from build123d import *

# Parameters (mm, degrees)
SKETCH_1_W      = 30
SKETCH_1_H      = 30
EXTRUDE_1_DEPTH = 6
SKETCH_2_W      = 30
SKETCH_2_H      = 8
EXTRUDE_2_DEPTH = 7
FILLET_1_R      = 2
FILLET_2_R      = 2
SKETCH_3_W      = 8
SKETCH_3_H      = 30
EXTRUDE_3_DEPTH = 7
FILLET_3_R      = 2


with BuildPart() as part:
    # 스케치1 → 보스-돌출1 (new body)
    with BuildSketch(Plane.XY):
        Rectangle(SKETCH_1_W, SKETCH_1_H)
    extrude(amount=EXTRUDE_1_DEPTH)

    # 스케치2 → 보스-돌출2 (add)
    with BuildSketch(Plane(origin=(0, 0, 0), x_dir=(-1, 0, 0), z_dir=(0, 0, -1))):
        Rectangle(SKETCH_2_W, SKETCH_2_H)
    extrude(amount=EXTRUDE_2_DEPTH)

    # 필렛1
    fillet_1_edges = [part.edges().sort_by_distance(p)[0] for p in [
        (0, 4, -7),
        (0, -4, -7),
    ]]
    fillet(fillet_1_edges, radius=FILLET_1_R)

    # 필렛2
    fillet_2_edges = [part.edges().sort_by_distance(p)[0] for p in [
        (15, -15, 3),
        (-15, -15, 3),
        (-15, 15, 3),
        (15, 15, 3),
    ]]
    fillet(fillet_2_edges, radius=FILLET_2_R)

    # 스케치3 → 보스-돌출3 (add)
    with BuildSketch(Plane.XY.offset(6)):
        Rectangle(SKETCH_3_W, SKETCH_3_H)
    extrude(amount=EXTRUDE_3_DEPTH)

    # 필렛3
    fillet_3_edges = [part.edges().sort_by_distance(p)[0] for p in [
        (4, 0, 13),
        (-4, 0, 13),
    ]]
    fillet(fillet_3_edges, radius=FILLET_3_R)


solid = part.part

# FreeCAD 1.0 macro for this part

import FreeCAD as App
import Part
import Sketcher

V = App.Vector


def edges_at(feature, points):
    """Names of the edges that pass closest to the given points."""
    edges = feature.Shape.Edges
    near = lambda p: min(range(len(edges)), key=lambda i: edges[i].distToShape(Part.Vertex(*p))[0])
    return sorted({f"Edge{near(p) + 1}" for p in points})


def add_polygon(sketch, points):
    """Adds a closed chain of lines whose ends are joined by coincident constraints."""
    first, n = sketch.GeometryCount, len(points)
    for a, b in zip(points, points[1:] + points[:1]):
        sketch.addGeometry(Part.LineSegment(App.Vector(*a, 0), App.Vector(*b, 0)), False)
    for i in range(n):
        sketch.addConstraint(Sketcher.Constraint("Coincident", first + i, 2, first + (i + 1) % n, 1))

doc = App.newDocument("Part")
params = doc.addObject("Spreadsheet::Sheet", "Params")
for row, (alias, value) in enumerate([
    ("sketch1_width", "30 mm"),
    ("pad1_length", "6 mm"),
    ("sketch2_width", "30 mm"),
    ("sketch2_height", "8 mm"),
    ("pad2_length", "7 mm"),
    ("fillet_radius", "2 mm"),
    ("fillet2_radius", "2 mm"),
    ("sketch3_width", "8 mm"),
    ("sketch3_height", "30 mm"),
    ("pad3_length", "7 mm"),
    ("fillet3_radius", "2 mm"),
], start=1):
    params.set(f"A{row}", alias)
    params.set(f"B{row}", "=" + value)
    params.setAlias(f"B{row}", alias)

body = doc.addObject("PartDesign::Body", "Body")

sketch1 = body.newObject("Sketcher::SketchObject", "Sketch")
sketch1.AttachmentSupport = (doc.getObject("XY_Plane"), [""])
sketch1.MapMode = "FlatFace"
add_polygon(sketch1, [(-15, 15), (-15, -15), (15, -15), (15, 15)])
sketch1.addConstraint(Sketcher.Constraint("Vertical", 0))
sketch1.addConstraint(Sketcher.Constraint("Horizontal", 1))
sketch1.addConstraint(Sketcher.Constraint("Vertical", 2))
sketch1.addConstraint(Sketcher.Constraint("Horizontal", 3))
sketch1.addConstraint(Sketcher.Constraint("Symmetric", 0, 2, 2, 2, -1, 1))
sketch1.addConstraint(Sketcher.Constraint("Equal", 3, 0))
sketch1.addConstraint(Sketcher.Constraint("DistanceX", 1, 1, 1, 2, 30.0))
sketch1.setExpression("Constraints[10]", "Params.sketch1_width")
pad1 = body.newObject("PartDesign::Pad", "Pad")
pad1.Profile = sketch1
pad1.setExpression("Length", "Params.pad1_length")

sketch2 = body.newObject("Sketcher::SketchObject", "Sketch001")
sketch2.AttachmentSupport = (doc.getObject("XY_Plane"), [""])
sketch2.MapMode = "FlatFace"
add_polygon(sketch2, [(15, 4), (15, -4), (-15, -4), (-15, 4)])
sketch2.addConstraint(Sketcher.Constraint("Vertical", 0))
sketch2.addConstraint(Sketcher.Constraint("Horizontal", 1))
sketch2.addConstraint(Sketcher.Constraint("Vertical", 2))
sketch2.addConstraint(Sketcher.Constraint("Horizontal", 3))
sketch2.addConstraint(Sketcher.Constraint("Symmetric", 0, 2, 2, 2, -1, 1))
sketch2.addConstraint(Sketcher.Constraint("DistanceX", 1, 2, 1, 1, 30.0))
sketch2.addConstraint(Sketcher.Constraint("DistanceY", 0, 2, 0, 1, 8.0))
sketch2.setExpression("Constraints[9]", "Params.sketch2_width")
sketch2.setExpression("Constraints[10]", "Params.sketch2_height")
pad2 = body.newObject("PartDesign::Pad", "Pad001")
pad2.Profile = sketch2
pad2.setExpression("Length", "Params.pad2_length")
pad2.Reversed = True
doc.recompute()

fillet = body.newObject("PartDesign::Fillet", "Fillet")
fillet.Base = (pad2, edges_at(pad2, [(0, 4, -7), (0, -4, -7)]))
fillet.setExpression("Radius", "Params.fillet_radius")
doc.recompute()

fillet2 = body.newObject("PartDesign::Fillet", "Fillet001")
fillet2.Base = (fillet, edges_at(fillet, [
    (15, -15, 3),
    (-15, -15, 3),
    (-15, 15, 3),
    (15, 15, 3),
]))
fillet2.setExpression("Radius", "Params.fillet2_radius")

sketch3 = body.newObject("Sketcher::SketchObject", "Sketch002")
sketch3.AttachmentSupport = (doc.getObject("XY_Plane"), [""])
sketch3.MapMode = "FlatFace"
sketch3.AttachmentOffset = App.Placement(V(0, 0, 6), App.Rotation())
add_polygon(sketch3, [(-4, 15), (-4, -15), (4, -15), (4, 15)])
sketch3.addConstraint(Sketcher.Constraint("Vertical", 0))
sketch3.addConstraint(Sketcher.Constraint("Horizontal", 1))
sketch3.addConstraint(Sketcher.Constraint("Vertical", 2))
sketch3.addConstraint(Sketcher.Constraint("Horizontal", 3))
sketch3.addConstraint(Sketcher.Constraint("Symmetric", 0, 2, 2, 2, -1, 1))
sketch3.addConstraint(Sketcher.Constraint("DistanceX", 1, 1, 1, 2, 8.0))
sketch3.addConstraint(Sketcher.Constraint("DistanceY", 0, 2, 0, 1, 30.0))
sketch3.setExpression("Constraints[9]", "Params.sketch3_width")
sketch3.setExpression("Constraints[10]", "Params.sketch3_height")
pad3 = body.newObject("PartDesign::Pad", "Pad002")
pad3.Profile = sketch3
pad3.setExpression("Length", "Params.pad3_length")
doc.recompute()

fillet3 = body.newObject("PartDesign::Fillet", "Fillet002")
fillet3.Base = (pad3, edges_at(pad3, [(4, 0, 13), (-4, 0, 13)]))
fillet3.setExpression("Radius", "Params.fillet3_radius")

doc.recompute()
